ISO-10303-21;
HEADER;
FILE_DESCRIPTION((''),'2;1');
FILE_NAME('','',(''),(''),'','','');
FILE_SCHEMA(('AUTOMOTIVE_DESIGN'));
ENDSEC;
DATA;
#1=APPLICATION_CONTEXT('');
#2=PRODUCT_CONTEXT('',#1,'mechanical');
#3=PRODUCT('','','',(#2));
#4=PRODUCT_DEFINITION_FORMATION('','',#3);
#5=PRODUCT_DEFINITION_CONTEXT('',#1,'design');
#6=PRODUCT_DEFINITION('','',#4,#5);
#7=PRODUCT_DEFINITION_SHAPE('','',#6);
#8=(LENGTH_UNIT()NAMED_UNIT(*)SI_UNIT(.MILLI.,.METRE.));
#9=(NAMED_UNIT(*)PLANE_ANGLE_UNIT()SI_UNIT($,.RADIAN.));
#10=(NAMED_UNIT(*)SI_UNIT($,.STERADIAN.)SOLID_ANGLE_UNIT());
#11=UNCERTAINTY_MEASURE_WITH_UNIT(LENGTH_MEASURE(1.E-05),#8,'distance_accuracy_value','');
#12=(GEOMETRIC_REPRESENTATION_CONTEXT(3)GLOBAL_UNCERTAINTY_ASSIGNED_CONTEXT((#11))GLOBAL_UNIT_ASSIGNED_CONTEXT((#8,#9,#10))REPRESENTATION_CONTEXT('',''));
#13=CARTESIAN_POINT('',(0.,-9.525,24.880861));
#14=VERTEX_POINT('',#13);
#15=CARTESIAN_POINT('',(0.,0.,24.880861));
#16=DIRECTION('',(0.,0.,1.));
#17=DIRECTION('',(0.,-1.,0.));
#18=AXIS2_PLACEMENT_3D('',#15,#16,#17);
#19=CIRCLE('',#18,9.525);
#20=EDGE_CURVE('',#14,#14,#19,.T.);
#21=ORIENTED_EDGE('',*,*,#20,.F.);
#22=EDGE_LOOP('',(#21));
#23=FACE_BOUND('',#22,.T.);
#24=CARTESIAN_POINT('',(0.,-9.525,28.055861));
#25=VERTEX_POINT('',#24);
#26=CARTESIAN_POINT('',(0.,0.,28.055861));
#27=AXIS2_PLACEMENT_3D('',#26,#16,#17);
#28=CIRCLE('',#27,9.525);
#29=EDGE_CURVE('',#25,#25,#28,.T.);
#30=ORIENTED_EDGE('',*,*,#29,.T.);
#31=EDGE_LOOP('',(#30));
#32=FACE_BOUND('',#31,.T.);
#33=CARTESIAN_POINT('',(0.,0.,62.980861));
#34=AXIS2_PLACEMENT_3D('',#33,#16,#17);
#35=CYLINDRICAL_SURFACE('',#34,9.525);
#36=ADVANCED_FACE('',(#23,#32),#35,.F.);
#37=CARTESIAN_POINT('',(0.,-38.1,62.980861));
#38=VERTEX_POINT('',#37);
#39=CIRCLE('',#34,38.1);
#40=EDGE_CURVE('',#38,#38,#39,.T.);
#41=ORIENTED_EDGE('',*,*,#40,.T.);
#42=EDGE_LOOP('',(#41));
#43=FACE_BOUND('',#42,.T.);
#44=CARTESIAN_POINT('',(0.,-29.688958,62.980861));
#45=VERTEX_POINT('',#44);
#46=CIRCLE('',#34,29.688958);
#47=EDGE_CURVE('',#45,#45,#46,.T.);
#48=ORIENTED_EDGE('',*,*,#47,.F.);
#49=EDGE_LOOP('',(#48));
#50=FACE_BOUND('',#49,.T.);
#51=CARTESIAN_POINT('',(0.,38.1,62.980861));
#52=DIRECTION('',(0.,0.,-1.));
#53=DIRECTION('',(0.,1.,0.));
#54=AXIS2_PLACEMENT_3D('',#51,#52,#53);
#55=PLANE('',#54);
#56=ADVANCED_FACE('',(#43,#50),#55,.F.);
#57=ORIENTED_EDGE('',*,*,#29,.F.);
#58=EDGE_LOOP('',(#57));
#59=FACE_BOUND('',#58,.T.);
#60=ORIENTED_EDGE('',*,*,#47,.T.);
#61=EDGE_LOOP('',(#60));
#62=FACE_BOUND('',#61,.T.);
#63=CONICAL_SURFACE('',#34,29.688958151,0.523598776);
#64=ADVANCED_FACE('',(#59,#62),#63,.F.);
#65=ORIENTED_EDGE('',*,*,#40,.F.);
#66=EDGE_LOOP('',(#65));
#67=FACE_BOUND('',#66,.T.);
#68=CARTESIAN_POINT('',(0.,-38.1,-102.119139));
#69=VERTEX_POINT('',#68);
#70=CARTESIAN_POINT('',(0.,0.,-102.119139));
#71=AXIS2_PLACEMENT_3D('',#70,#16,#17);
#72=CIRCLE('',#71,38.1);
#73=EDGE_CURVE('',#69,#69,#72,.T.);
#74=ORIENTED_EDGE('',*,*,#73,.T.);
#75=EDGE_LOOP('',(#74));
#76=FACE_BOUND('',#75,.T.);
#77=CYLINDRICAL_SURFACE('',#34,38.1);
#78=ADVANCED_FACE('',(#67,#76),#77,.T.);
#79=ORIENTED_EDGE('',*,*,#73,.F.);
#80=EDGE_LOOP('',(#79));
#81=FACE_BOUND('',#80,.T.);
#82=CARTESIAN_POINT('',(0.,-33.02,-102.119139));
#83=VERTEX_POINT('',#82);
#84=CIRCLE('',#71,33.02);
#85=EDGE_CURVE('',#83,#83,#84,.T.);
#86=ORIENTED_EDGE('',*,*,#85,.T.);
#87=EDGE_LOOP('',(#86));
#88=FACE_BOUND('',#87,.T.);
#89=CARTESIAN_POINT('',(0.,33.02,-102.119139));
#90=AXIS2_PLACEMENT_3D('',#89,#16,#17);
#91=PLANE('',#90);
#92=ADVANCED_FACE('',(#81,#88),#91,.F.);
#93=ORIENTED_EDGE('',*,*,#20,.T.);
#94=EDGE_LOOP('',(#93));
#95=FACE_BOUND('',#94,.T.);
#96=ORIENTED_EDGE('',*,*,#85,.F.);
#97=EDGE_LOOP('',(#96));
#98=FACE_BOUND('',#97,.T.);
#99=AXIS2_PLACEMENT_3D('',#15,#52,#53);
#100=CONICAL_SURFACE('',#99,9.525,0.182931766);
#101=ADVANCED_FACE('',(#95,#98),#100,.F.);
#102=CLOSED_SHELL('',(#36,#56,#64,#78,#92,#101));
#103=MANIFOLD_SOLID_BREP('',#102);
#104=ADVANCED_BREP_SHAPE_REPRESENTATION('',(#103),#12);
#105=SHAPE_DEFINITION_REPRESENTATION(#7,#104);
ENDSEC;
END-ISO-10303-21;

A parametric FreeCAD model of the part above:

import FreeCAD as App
import Part
import Sketcher
Q = App.Units.Quantity

doc = App.newDocument("Part")
params = doc.addObject("Spreadsheet::Sheet", "Params")
for row, (alias, value) in enumerate([
    ("sketch1_width", "0.2 in"),
    ("sketch1_height", "6.5 in"),
    ("sketch1_height2", "0.125 in"),
    ("revolution_angle", "360 deg"),
], start=1):
    params.set(f"A{row}", alias)
    params.set(f"B{row}", "=" + value)
    params.setAlias(f"B{row}", alias)

body = doc.addObject("PartDesign::Body", "Body")

# Sketch on YZ plane
sketch1 = body.newObject("Sketcher::SketchObject", "Sketch")
sketch1.AttachmentSupport = (doc.getObject("YZ_Plane"), [""])
sketch1.MapMode = "FlatFace"
sketch1.addGeometry(Part.LineSegment(App.Vector(29.7, 63, 0), App.Vector(9.5, 28.1, 0)), False)
sketch1.addGeometry(Part.LineSegment(App.Vector(9.5, 28.1, 0), App.Vector(9.5, 24.9, 0)), False)
sketch1.addGeometry(Part.LineSegment(App.Vector(9.5, 24.9, 0), App.Vector(33, -102.1, 0)), False)
sketch1.addGeometry(Part.LineSegment(App.Vector(33, -102.1, 0), App.Vector(38.1, -102.1, 0)), False)
sketch1.addGeometry(Part.LineSegment(App.Vector(38.1, -102.1, 0), App.Vector(38.1, 63, 0)), False)
sketch1.addGeometry(Part.LineSegment(App.Vector(38.1, 63, 0), App.Vector(29.7, 63, 0)), False)
sketch1.addConstraint(Sketcher.Constraint("Coincident", 0, 2, 1, 1))
sketch1.addConstraint(Sketcher.Constraint("Coincident", 1, 2, 2, 1))
sketch1.addConstraint(Sketcher.Constraint("Coincident", 2, 2, 3, 1))
sketch1.addConstraint(Sketcher.Constraint("Coincident", 3, 2, 4, 1))
sketch1.addConstraint(Sketcher.Constraint("Coincident", 4, 2, 5, 1))
sketch1.addConstraint(Sketcher.Constraint("Coincident", 5, 2, 0, 1))
sketch1.addConstraint(Sketcher.Constraint("Vertical", 1))
sketch1.addConstraint(Sketcher.Constraint("Horizontal", 3))
sketch1.addConstraint(Sketcher.Constraint("Vertical", 4))
sketch1.addConstraint(Sketcher.Constraint("Horizontal", 5))
sketch1.addConstraint(Sketcher.Constraint("DistanceX", 3, 1, 3, 2, Q("0.2 in")))
sketch1.addConstraint(Sketcher.Constraint("DistanceY", 4, 1, 4, 2, Q("6.5 in")))
sketch1.addConstraint(Sketcher.Constraint("Angle", 0, Q("-120 deg")))
sketch1.addConstraint(Sketcher.Constraint("DistanceY", 2, 2, 1, 2, Q("5 in")))
sketch1.addConstraint(Sketcher.Constraint("DistanceX", -1, 1, 2, 2, Q("1.3 in")))
sketch1.addConstraint(Sketcher.Constraint("DistanceY", 1, 2, 1, 1, Q("0.125 in")))
sketch1.addConstraint(Sketcher.Constraint("DistanceX", -1, 1, 0, 2, Q("0.375 in")))
sketch1.addConstraint(Sketcher.Constraint("DistanceY", -1, 1, 0, 2, 28.055861))
sketch1.setExpression("Constraints[10]", "Params.sketch1_width")
sketch1.setExpression("Constraints[11]", "Params.sketch1_height")
sketch1.setExpression("Constraints[15]", "Params.sketch1_height2")
revolution = body.newObject("PartDesign::Revolution", "Revolution")
revolution.Profile = sketch1
revolution.ReferenceAxis = (sketch1, ["V_Axis"])
revolution.setExpression("Angle", "Params.revolution_angle")

doc.recompute()
